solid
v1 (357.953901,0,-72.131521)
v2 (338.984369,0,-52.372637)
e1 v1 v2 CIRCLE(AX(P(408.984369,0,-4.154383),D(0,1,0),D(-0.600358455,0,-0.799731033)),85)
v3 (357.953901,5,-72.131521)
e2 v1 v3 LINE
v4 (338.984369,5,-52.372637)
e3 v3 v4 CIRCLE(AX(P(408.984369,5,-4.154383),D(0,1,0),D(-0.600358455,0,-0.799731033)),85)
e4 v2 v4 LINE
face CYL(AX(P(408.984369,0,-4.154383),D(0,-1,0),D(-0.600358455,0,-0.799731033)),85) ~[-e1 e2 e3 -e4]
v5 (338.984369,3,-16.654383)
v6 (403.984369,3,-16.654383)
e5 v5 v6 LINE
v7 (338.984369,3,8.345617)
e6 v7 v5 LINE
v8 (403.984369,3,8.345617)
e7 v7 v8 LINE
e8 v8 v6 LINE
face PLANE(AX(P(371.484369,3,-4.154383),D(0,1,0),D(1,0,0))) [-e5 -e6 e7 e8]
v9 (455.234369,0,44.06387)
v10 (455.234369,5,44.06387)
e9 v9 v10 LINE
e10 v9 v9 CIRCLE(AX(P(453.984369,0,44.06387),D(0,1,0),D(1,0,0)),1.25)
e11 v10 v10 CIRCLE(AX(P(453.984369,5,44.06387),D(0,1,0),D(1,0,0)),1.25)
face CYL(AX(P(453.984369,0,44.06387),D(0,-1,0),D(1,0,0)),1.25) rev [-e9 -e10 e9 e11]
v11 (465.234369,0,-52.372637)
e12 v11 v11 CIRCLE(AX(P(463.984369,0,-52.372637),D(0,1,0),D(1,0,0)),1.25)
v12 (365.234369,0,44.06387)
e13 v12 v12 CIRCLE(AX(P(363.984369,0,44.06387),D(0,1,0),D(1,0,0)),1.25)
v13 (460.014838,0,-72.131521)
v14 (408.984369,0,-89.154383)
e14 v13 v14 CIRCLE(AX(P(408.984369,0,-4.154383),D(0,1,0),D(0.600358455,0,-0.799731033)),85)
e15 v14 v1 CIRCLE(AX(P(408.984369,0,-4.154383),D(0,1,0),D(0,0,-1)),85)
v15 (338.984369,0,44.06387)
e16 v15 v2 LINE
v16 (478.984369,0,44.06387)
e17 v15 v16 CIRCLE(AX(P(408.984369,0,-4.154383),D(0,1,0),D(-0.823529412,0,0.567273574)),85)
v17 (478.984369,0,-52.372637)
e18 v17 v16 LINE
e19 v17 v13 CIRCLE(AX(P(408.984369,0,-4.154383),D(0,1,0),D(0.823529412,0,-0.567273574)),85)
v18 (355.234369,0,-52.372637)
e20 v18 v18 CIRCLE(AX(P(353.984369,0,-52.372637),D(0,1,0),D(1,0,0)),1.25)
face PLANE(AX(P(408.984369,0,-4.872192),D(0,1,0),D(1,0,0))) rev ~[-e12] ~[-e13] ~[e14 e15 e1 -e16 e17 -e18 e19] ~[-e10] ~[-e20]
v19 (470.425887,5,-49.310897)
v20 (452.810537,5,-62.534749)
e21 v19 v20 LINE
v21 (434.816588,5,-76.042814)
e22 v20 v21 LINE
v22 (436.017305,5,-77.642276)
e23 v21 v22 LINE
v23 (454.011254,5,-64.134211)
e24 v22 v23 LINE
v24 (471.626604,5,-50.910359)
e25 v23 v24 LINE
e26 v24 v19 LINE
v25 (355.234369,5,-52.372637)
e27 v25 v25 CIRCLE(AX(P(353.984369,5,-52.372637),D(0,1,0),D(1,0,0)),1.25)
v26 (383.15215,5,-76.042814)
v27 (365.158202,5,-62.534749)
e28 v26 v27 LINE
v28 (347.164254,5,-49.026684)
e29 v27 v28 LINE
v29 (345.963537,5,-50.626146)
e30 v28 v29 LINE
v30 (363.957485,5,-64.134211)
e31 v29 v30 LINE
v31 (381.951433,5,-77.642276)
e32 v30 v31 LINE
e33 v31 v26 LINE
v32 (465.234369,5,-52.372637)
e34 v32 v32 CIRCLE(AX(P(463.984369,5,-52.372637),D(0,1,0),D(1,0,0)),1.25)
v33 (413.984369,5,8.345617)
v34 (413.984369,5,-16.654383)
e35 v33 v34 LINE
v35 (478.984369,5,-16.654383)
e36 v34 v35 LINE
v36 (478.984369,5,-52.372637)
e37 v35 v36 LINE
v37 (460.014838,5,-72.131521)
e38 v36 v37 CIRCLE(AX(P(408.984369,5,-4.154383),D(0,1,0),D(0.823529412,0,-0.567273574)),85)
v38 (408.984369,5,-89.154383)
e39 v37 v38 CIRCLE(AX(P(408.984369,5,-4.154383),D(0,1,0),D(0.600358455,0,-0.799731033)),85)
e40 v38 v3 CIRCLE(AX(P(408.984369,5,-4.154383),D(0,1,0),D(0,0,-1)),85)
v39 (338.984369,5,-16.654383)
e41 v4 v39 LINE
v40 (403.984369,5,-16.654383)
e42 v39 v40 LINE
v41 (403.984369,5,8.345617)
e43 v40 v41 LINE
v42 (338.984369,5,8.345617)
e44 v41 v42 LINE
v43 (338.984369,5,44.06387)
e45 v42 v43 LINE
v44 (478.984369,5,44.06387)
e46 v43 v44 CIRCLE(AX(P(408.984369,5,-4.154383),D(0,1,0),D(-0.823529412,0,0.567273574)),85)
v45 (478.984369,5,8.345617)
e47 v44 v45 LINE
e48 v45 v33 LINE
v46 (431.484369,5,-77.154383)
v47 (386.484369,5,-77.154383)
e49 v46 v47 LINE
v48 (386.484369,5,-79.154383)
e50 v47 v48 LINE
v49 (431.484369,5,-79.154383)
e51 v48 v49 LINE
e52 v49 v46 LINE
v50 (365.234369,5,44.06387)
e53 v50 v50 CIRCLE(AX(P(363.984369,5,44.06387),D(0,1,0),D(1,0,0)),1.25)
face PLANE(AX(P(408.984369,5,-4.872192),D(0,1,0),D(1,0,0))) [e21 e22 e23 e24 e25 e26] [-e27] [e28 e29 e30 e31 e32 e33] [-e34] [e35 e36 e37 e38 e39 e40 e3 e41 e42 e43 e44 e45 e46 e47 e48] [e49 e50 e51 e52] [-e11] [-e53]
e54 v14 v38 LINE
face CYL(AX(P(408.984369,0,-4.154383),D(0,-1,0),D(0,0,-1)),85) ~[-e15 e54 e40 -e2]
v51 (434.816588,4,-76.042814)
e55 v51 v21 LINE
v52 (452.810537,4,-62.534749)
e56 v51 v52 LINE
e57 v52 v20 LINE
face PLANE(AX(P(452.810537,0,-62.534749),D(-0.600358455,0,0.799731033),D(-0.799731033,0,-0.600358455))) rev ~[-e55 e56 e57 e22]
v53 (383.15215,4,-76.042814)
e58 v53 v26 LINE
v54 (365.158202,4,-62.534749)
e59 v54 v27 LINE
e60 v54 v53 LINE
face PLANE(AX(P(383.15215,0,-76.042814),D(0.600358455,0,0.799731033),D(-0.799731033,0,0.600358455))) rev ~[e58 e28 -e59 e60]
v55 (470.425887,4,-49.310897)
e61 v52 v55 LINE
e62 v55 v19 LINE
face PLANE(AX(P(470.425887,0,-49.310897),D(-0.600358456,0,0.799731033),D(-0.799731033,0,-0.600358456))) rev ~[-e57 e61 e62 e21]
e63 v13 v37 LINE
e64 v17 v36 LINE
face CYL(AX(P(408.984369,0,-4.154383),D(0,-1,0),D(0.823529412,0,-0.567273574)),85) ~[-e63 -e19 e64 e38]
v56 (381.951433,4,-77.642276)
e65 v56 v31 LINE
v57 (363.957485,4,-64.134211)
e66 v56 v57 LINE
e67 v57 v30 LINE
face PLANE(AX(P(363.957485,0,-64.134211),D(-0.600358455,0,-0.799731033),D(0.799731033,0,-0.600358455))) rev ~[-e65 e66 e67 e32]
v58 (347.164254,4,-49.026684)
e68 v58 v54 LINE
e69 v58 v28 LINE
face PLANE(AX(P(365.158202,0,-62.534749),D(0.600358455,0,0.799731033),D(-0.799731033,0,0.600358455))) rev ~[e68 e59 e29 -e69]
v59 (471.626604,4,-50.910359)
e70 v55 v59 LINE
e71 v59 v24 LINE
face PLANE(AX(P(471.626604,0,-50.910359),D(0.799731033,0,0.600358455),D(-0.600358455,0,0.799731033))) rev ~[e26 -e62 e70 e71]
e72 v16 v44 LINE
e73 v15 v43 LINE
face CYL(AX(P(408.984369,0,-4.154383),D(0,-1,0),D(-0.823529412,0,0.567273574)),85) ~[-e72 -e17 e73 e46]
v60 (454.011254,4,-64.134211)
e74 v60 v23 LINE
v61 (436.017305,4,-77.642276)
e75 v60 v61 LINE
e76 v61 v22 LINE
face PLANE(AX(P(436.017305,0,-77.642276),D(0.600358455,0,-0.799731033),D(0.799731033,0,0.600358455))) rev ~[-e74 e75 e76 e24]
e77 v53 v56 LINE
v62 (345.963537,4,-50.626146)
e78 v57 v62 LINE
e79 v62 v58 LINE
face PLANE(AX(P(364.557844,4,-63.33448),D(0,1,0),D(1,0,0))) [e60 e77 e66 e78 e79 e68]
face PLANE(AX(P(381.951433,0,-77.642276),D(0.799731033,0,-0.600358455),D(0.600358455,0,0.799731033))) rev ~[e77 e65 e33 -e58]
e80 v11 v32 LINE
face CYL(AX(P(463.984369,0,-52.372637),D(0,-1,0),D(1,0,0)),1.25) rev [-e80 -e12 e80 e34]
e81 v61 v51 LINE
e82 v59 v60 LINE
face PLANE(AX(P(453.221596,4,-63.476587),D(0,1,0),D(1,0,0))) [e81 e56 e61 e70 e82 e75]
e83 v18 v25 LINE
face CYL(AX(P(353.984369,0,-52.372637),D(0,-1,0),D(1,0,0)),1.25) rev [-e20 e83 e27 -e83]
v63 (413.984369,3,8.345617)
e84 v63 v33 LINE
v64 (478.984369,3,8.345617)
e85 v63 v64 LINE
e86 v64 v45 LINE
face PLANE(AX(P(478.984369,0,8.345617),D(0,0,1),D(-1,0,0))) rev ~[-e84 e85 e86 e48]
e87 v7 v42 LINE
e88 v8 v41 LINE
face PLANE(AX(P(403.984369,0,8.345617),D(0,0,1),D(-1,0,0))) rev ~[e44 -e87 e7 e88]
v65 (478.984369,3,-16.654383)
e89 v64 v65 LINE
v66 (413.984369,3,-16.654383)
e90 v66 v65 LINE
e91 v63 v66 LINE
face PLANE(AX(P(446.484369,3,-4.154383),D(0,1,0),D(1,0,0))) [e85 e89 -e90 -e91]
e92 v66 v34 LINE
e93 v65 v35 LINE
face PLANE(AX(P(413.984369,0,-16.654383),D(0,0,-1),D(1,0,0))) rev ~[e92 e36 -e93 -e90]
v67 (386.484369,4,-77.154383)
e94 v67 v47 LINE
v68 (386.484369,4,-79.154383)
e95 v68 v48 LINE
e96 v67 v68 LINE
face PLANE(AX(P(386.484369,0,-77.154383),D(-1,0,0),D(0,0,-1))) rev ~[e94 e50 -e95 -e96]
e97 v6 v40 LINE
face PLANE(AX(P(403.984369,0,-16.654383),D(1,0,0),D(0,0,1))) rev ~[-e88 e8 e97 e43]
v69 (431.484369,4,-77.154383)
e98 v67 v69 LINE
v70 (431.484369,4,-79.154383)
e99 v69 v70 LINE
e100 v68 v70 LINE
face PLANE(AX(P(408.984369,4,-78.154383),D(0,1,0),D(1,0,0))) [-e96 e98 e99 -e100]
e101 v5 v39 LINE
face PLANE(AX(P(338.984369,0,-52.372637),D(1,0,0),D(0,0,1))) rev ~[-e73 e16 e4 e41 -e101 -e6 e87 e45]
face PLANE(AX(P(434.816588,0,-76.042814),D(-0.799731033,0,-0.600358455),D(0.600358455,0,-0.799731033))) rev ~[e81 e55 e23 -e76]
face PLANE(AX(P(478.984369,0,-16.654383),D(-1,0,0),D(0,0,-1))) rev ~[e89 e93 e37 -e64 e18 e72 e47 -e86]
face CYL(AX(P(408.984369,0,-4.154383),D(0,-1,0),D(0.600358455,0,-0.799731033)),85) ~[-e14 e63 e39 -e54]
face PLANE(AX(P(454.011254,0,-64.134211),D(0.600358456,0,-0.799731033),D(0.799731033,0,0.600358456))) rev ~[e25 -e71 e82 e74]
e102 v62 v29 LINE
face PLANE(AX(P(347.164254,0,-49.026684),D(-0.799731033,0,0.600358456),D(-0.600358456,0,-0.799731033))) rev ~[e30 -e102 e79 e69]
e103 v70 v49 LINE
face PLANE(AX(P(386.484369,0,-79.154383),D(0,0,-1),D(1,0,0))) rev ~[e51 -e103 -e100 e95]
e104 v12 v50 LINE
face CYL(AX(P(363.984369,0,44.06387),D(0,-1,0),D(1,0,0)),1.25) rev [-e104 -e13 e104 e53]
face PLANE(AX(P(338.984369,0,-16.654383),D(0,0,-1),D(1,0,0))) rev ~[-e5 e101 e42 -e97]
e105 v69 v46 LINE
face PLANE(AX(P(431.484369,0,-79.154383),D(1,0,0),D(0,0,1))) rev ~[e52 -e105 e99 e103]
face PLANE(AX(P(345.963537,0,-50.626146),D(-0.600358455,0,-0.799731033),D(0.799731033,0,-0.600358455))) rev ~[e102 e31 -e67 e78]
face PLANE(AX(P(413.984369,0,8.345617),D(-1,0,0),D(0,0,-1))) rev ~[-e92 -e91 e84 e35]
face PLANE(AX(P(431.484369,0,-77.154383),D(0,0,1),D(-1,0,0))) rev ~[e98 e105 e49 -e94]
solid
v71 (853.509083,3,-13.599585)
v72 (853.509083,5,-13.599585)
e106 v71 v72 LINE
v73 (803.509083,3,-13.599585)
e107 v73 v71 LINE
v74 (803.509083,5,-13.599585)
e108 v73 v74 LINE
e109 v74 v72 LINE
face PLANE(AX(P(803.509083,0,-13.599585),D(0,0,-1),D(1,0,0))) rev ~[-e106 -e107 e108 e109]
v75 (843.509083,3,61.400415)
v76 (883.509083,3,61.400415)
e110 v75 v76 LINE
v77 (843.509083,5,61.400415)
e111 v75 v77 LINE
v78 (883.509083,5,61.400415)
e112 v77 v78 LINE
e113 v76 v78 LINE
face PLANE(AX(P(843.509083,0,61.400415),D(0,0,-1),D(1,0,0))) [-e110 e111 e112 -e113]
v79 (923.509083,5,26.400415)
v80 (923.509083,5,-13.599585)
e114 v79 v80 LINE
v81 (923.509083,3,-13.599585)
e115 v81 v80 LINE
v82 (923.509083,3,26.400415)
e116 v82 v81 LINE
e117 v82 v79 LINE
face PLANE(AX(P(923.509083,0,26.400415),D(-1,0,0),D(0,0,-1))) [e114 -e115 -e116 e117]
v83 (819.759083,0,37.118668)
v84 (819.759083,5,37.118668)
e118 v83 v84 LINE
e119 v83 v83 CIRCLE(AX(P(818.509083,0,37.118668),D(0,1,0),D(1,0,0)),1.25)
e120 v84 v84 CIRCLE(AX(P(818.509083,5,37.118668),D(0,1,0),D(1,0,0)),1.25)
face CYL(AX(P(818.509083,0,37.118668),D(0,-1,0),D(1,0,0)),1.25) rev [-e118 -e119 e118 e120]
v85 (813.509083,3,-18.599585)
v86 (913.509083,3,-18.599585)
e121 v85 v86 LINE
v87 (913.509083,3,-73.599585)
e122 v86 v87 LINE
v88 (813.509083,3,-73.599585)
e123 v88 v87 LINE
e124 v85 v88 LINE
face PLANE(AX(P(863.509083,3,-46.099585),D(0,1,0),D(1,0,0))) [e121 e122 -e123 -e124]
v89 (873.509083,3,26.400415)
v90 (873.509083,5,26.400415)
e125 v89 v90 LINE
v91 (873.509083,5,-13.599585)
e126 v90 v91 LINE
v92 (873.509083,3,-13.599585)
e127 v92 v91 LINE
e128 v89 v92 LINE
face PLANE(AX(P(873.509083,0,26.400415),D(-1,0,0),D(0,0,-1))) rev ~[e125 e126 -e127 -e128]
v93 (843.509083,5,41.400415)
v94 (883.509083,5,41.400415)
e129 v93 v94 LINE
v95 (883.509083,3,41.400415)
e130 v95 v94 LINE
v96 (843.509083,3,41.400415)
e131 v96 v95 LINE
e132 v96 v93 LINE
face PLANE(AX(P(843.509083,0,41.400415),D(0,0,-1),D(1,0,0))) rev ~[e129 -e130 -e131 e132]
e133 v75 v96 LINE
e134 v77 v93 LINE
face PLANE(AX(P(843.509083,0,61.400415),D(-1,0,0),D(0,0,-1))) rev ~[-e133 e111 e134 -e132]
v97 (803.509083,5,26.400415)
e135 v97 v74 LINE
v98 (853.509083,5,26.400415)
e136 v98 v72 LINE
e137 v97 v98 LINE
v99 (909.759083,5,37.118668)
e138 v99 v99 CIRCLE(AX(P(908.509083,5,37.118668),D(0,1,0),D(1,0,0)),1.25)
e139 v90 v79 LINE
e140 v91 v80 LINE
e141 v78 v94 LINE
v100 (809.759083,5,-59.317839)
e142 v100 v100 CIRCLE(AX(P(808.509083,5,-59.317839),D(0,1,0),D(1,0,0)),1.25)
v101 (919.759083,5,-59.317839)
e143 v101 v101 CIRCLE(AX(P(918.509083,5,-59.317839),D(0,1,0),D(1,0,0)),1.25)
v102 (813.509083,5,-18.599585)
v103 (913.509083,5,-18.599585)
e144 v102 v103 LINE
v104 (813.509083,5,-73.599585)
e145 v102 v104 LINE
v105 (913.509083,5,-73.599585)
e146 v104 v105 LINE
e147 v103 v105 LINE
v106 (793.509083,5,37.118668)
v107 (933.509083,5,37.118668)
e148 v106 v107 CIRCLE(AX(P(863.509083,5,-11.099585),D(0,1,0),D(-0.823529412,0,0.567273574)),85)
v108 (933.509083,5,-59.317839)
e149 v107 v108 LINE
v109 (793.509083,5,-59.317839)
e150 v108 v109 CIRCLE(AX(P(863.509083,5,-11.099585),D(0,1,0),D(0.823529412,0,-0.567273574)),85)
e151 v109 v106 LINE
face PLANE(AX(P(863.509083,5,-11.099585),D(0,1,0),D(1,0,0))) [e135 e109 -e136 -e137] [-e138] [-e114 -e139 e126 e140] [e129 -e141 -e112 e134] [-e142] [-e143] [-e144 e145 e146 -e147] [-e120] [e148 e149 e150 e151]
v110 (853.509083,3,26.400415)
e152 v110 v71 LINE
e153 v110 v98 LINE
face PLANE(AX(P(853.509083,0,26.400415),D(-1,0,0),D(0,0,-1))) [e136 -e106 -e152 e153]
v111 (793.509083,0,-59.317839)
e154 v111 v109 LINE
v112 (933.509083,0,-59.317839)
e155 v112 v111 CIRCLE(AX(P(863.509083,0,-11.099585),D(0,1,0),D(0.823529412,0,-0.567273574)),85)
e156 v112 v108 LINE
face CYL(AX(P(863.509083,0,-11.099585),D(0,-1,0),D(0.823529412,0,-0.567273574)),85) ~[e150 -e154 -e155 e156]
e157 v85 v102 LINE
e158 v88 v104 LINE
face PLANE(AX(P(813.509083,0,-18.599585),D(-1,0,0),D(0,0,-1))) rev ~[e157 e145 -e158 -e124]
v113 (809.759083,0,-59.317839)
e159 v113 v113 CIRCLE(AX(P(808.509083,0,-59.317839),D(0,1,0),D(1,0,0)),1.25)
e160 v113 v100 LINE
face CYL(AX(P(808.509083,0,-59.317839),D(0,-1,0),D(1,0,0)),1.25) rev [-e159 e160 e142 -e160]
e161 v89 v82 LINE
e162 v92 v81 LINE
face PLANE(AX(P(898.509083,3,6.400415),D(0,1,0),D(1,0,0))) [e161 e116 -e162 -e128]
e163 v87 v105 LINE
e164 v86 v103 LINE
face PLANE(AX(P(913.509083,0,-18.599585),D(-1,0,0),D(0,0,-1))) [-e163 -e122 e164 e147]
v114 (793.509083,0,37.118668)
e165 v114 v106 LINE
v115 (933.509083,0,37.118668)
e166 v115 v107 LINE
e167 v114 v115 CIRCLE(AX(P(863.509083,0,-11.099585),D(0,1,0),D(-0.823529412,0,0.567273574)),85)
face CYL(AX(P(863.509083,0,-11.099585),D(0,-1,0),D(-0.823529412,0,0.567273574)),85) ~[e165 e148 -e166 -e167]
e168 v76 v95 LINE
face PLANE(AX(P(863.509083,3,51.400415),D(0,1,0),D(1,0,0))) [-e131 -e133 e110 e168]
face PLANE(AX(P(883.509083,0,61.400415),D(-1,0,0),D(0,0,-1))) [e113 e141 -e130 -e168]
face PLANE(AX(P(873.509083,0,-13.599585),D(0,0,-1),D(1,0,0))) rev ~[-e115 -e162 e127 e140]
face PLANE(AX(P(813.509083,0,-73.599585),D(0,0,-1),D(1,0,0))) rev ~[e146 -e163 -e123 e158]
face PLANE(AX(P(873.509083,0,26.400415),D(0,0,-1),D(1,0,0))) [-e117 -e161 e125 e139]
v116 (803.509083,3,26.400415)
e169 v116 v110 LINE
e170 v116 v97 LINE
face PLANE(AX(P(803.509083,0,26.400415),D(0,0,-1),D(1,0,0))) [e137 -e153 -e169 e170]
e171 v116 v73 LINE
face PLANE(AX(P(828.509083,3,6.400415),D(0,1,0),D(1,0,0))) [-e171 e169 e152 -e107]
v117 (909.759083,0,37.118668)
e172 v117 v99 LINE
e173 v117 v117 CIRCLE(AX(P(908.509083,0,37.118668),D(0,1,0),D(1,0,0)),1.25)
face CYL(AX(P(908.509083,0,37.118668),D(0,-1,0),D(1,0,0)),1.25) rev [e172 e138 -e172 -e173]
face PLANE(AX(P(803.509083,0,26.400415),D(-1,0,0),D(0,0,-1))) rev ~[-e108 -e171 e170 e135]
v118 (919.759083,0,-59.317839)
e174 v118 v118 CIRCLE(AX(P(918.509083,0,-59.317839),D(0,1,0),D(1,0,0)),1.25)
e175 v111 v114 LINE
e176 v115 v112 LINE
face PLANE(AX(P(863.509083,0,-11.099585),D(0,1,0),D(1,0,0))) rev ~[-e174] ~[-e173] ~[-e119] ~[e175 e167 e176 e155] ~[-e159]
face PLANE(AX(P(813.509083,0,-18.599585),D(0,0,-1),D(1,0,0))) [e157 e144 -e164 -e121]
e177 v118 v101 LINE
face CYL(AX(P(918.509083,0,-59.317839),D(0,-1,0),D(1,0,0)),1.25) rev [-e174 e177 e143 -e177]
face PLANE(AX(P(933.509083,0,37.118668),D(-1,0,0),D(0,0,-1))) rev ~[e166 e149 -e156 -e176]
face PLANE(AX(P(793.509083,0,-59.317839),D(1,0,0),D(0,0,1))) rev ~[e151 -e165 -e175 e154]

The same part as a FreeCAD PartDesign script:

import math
import FreeCAD as App
import Part
import Sketcher
from FreeCAD import Vector

doc = App.newDocument("Part")
body = doc.addObject("PartDesign::Body", "Body")

# Sketch on XZ plane
sketch1 = doc.addObject("Sketcher::SketchObject", "Sketch")
body.addObject(sketch1)
sketch1.AttachmentSupport = (doc.XZ_Plane, [""])
sketch1.MapMode = "FlatFace"
sketch1.addGeometry([
    Part.LineSegment(Vector(347.2, -49, 0), Vector(383.2, -76, 0)),
    Part.LineSegment(Vector(383.2, -76, 0), Vector(382, -77.6, 0)),
    Part.LineSegment(Vector(382, -77.6, 0), Vector(346, -50.6, 0)),
    Part.LineSegment(Vector(346, -50.6, 0), Vector(347.2, -49, 0)),
], False)
sketch1.addConstraint([
    Sketcher.Constraint("Coincident", 0, 2, 1, 1),
    Sketcher.Constraint("Coincident", 1, 2, 2, 1),
    Sketcher.Constraint("Coincident", 2, 2, 3, 1),
    Sketcher.Constraint("Coincident", 3, 2, 0, 1),
    Sketcher.Constraint("Perpendicular", 0, 1),
    Sketcher.Constraint("Perpendicular", 1, 2),
    Sketcher.Constraint("Perpendicular", 2, 3),
    Sketcher.Constraint("Distance", 0, 45.0),
    Sketcher.Constraint("Distance", 1, 2.0),
    Sketcher.Constraint("DistanceX", -1, 1, 0, 2, 383.15215),
    Sketcher.Constraint("DistanceY", 1, 2, 2, 2, 27.01613),
    Sketcher.Constraint("DistanceY", 0, 2, -1, 1, 76.042814),
])
pad1 = doc.addObject("PartDesign::Pad", "Pad")
body.addObject(pad1)
pad1.Profile = sketch1
pad1.Length = 4
pad1.Reversed = True
body2 = doc.addObject("PartDesign::Body", "Body001")

# Sketch on XZ plane
sketch2 = doc.addObject("Sketcher::SketchObject", "Sketch001")
body2.addObject(sketch2)
sketch2.AttachmentSupport = (doc.getObject("XZ_Plane001"), [""])
sketch2.MapMode = "FlatFace"
sketch2.addGeometry([
    Part.LineSegment(Vector(386.5, -79.2, 0), Vector(386.5, -77.2, 0)),
    Part.LineSegment(Vector(386.5, -77.2, 0), Vector(431.5, -77.2, 0)),
    Part.LineSegment(Vector(431.5, -77.2, 0), Vector(431.5, -79.2, 0)),
    Part.LineSegment(Vector(431.5, -79.2, 0), Vector(386.5, -79.2, 0)),
], False)
sketch2.addConstraint([
    Sketcher.Constraint("Coincident", 0, 2, 1, 1),
    Sketcher.Constraint("Coincident", 1, 2, 2, 1),
    Sketcher.Constraint("Coincident", 2, 2, 3, 1),
    Sketcher.Constraint("Coincident", 3, 2, 0, 1),
    Sketcher.Constraint("Vertical", 0),
    Sketcher.Constraint("Horizontal", 1),
    Sketcher.Constraint("Vertical", 2),
    Sketcher.Constraint("Horizontal", 3),
    Sketcher.Constraint("DistanceX", 1, 1, 1, 2, 45.0),
    Sketcher.Constraint("DistanceY", 0, 1, 0, 2, 2.0),
    Sketcher.Constraint("DistanceX", -1, 1, 0, 2, 386.484369),
    Sketcher.Constraint("DistanceY", 0, 2, -1, 1, 77.154383),
])
pad2 = doc.addObject("PartDesign::Pad", "Pad001")
body2.addObject(pad2)
pad2.Profile = sketch2
pad2.Length = 4
pad2.Reversed = True
body3 = doc.addObject("PartDesign::Body", "Body002")

# Sketch on XZ plane
sketch3 = doc.addObject("Sketcher::SketchObject", "Sketch002")
body3.addObject(sketch3)
sketch3.AttachmentSupport = (doc.getObject("XZ_Plane002"), [""])
sketch3.MapMode = "FlatFace"
sketch3.addGeometry([
    Part.LineSegment(Vector(471.6, -50.9, 0), Vector(436, -77.6, 0)),
    Part.LineSegment(Vector(436, -77.6, 0), Vector(434.8, -76, 0)),
    Part.LineSegment(Vector(434.8, -76, 0), Vector(470.4, -49.3, 0)),
    Part.LineSegment(Vector(470.4, -49.3, 0), Vector(471.6, -50.9, 0)),
], False)
sketch3.addConstraint([
    Sketcher.Constraint("Coincident", 0, 2, 1, 1),
    Sketcher.Constraint("Coincident", 1, 2, 2, 1),
    Sketcher.Constraint("Coincident", 2, 2, 3, 1),
    Sketcher.Constraint("Coincident", 3, 2, 0, 1),
    Sketcher.Constraint("Perpendicular", 0, 1),
    Sketcher.Constraint("Perpendicular", 1, 2),
    Sketcher.Constraint("Perpendicular", 2, 3),
    Sketcher.Constraint("Distance", 1, 2.0),
    Sketcher.Constraint("DistanceX", 1, 2, 2, 2, 35.609299),
    Sketcher.Constraint("DistanceX", -1, 1, 1, 2, 434.816588),
    Sketcher.Constraint("DistanceY", 3, 2, -1, 1, 50.910359),
    Sketcher.Constraint("DistanceX", 0, 2, 2, 2, 34.408582),
])
pad3 = doc.addObject("PartDesign::Pad", "Pad002")
body3.addObject(pad3)
pad3.Profile = sketch3
pad3.Length = 4
pad3.Reversed = True
body4 = doc.addObject("PartDesign::Body", "Body003")

# Sketch on XZ plane
sketch4 = doc.addObject("Sketcher::SketchObject", "Sketch003")
body4.addObject(sketch4)
sketch4.AttachmentSupport = (doc.getObject("XZ_Plane003"), [""])
sketch4.MapMode = "FlatFace"
sketch4.addGeometry([
    Part.LineSegment(Vector(339, -17, 0), Vector(339, 8, 0)),
    Part.LineSegment(Vector(339, 8, 0), Vector(404, 8, 0)),
    Part.LineSegment(Vector(404, 8, 0), Vector(404, -17, 0)),
    Part.LineSegment(Vector(404, -17, 0), Vector(339, -17, 0)),
], False)
sketch4.addConstraint([
    Sketcher.Constraint("Coincident", 0, 2, 1, 1),
    Sketcher.Constraint("Coincident", 1, 2, 2, 1),
    Sketcher.Constraint("Coincident", 2, 2, 3, 1),
    Sketcher.Constraint("Coincident", 3, 2, 0, 1),
    Sketcher.Constraint("Vertical", 0),
    Sketcher.Constraint("Horizontal", 1),
    Sketcher.Constraint("Vertical", 2),
    Sketcher.Constraint("Horizontal", 3),
    Sketcher.Constraint("DistanceX", 1, 1, 1, 2, 65.0),
    Sketcher.Constraint("DistanceY", 0, 1, 0, 2, 25.0),
    Sketcher.Constraint("DistanceX", -1, 1, 0, 2, 338.984369),
    Sketcher.Constraint("DistanceY", -1, 1, 0, 2, 8.345617),
])
pad4 = doc.addObject("PartDesign::Pad", "Pad003")
body4.addObject(pad4)
pad4.Profile = sketch4
pad4.Length = 3
pad4.Reversed = True
body5 = doc.addObject("PartDesign::Body", "Body004")

# Sketch on XZ plane
sketch5 = doc.addObject("Sketcher::SketchObject", "Sketch004")
body5.addObject(sketch5)
sketch5.AttachmentSupport = (doc.getObject("XZ_Plane004"), [""])
sketch5.MapMode = "FlatFace"
sketch5.addGeometry([
    Part.LineSegment(Vector(414, -17, 0), Vector(414, 8, 0)),
    Part.LineSegment(Vector(414, 8, 0), Vector(479, 8, 0)),
    Part.LineSegment(Vector(479, 8, 0), Vector(479, -17, 0)),
    Part.LineSegment(Vector(479, -17, 0), Vector(414, -17, 0)),
], False)
sketch5.addConstraint([
    Sketcher.Constraint("Coincident", 0, 2, 1, 1),
    Sketcher.Constraint("Coincident", 1, 2, 2, 1),
    Sketcher.Constraint("Coincident", 2, 2, 3, 1),
    Sketcher.Constraint("Coincident", 3, 2, 0, 1),
    Sketcher.Constraint("Vertical", 0),
    Sketcher.Constraint("Horizontal", 1),
    Sketcher.Constraint("Vertical", 2),
    Sketcher.Constraint("Horizontal", 3),
    Sketcher.Constraint("DistanceX", 1, 1, 1, 2, 65.0),
    Sketcher.Constraint("DistanceY", 0, 1, 0, 2, 25.0),
    Sketcher.Constraint("DistanceX", -1, 1, 0, 2, 413.984369),
    Sketcher.Constraint("DistanceY", -1, 1, 0, 2, 8.345617),
])
pad5 = doc.addObject("PartDesign::Pad", "Pad004")
body5.addObject(pad5)
pad5.Profile = sketch5
pad5.Length = 3
pad5.Reversed = True
body.AllowCompound = True
doc.recompute()

boolean = doc.addObject("PartDesign::Boolean", "Boolean")
body.addObject(boolean)
boolean.Type = "Fuse"
boolean.addObjects([body2])
doc.recompute()

boolean2 = doc.addObject("PartDesign::Boolean", "Boolean001")
body.addObject(boolean2)
boolean2.Type = "Fuse"
boolean2.addObjects([body3])
doc.recompute()

boolean3 = doc.addObject("PartDesign::Boolean", "Boolean002")
body.addObject(boolean3)
boolean3.Type = "Fuse"
boolean3.addObjects([body4])
doc.recompute()

boolean4 = doc.addObject("PartDesign::Boolean", "Boolean003")
body.addObject(boolean4)
boolean4.Type = "Fuse"
boolean4.addObjects([body5])

# Sketch on XZ plane
sketch6 = doc.addObject("Sketcher::SketchObject", "Sketch005")
body.addObject(sketch6)
sketch6.AttachmentSupport = (doc.XZ_Plane, [""])
sketch6.MapMode = "FlatFace"
sketch6.addGeometry([
    Part.ArcOfCircle(Part.Circle(Vector(409, -4.2, 0), Vector(0, 0, 1), 85), math.radians(-127), math.radians(-90)),  # 0
    Part.ArcOfCircle(Part.Circle(Vector(409, -4.2, 0), Vector(0, 0, 1), 85), math.radians(-145.44), math.radians(-126.9)),  # 1
    Part.LineSegment(Vector(339, -52.4, 0), Vector(339, -16.7, 0)),  # 2
    Part.LineSegment(Vector(339, -16.7, 0), Vector(404, -16.7, 0)),  # 3
    Part.LineSegment(Vector(404, -16.7, 0), Vector(404, 8.3, 0)),  # 4
    Part.LineSegment(Vector(404, 8.3, 0), Vector(339, 8.3, 0)),  # 5
    Part.LineSegment(Vector(339, 8.3, 0), Vector(339, 44.1, 0)),  # 6
    Part.ArcOfCircle(Part.Circle(Vector(409, -4.2, 0), Vector(0, 0, 1), 85), math.radians(35), math.radians(145)),  # 7
    Part.LineSegment(Vector(479, 44.1, 0), Vector(479, 8.3, 0)),  # 8
    Part.LineSegment(Vector(479, 8.3, 0), Vector(414, 8.3, 0)),  # 9
    Part.LineSegment(Vector(414, 8.3, 0), Vector(414, -16.7, 0)),  # 10
    Part.LineSegment(Vector(414, -16.7, 0), Vector(479, -16.7, 0)),  # 11
    Part.LineSegment(Vector(479, -16.7, 0), Vector(479, -52.4, 0)),  # 12
    Part.ArcOfCircle(Part.Circle(Vector(409, -4.2, 0), Vector(0, 0, 1), 85), math.radians(-53.1), math.radians(-34.56)),  # 13
    Part.ArcOfCircle(Part.Circle(Vector(409, -4.2, 0), Vector(0, 0, 1), 85), math.radians(-90), math.radians(-53)),  # 14
    Part.Circle(Vector(364, 44.1, 0), Vector(0, 0, 1), 1.2),  # 15
    Part.Circle(Vector(454, 44.1, 0), Vector(0, 0, 1), 1.2),  # 16
    Part.Circle(Vector(354, -52.4, 0), Vector(0, 0, 1), 1.2),  # 17
    Part.LineSegment(Vector(347.2, -49, 0), Vector(346, -50.6, 0)),  # 18
    Part.LineSegment(Vector(346, -50.6, 0), Vector(364, -64.1, 0)),  # 19
    Part.LineSegment(Vector(364, -64.1, 0), Vector(382, -77.6, 0)),  # 20
    Part.LineSegment(Vector(382, -77.6, 0), Vector(383.2, -76, 0)),  # 21
    Part.LineSegment(Vector(383.2, -76, 0), Vector(365.2, -62.5, 0)),  # 22
    Part.LineSegment(Vector(365.2, -62.5, 0), Vector(347.2, -49, 0)),  # 23
    Part.LineSegment(Vector(386.5, -77.2, 0), Vector(386.5, -79.2, 0)),  # 24
    Part.LineSegment(Vector(386.5, -79.2, 0), Vector(431.5, -79.2, 0)),  # 25
    Part.LineSegment(Vector(431.5, -79.2, 0), Vector(431.5, -77.2, 0)),  # 26
    Part.LineSegment(Vector(431.5, -77.2, 0), Vector(386.5, -77.2, 0)),  # 27
    Part.LineSegment(Vector(434.8, -76, 0), Vector(436, -77.6, 0)),  # 28
    Part.LineSegment(Vector(436, -77.6, 0), Vector(454, -64.1, 0)),  # 29
    Part.LineSegment(Vector(454, -64.1, 0), Vector(471.6, -50.9, 0)),  # 30
    Part.LineSegment(Vector(471.6, -50.9, 0), Vector(470.4, -49.3, 0)),  # 31
    Part.LineSegment(Vector(470.4, -49.3, 0), Vector(452.8, -62.5, 0)),  # 32
    Part.LineSegment(Vector(452.8, -62.5, 0), Vector(434.8, -76, 0)),  # 33
    Part.Circle(Vector(464, -52.4, 0), Vector(0, 0, 1), 1.2),  # 34
], False)
sketch6.addConstraint([
    Sketcher.Constraint("Tangent", 0, 1, 1, 2),
    Sketcher.Constraint("Coincident", 1, 1, 2, 1),
    Sketcher.Constraint("Coincident", 2, 2, 3, 1),
    Sketcher.Constraint("Coincident", 3, 2, 4, 1),
    Sketcher.Constraint("Coincident", 4, 2, 5, 1),
    Sketcher.Constraint("Coincident", 5, 2, 6, 1),
    Sketcher.Constraint("Coincident", 6, 2, 7, 2),
    Sketcher.Constraint("Coincident", 7, 1, 8, 1),
    Sketcher.Constraint("Coincident", 8, 2, 9, 1),
    Sketcher.Constraint("Coincident", 9, 2, 10, 1),
    Sketcher.Constraint("Coincident", 10, 2, 11, 1),
    Sketcher.Constraint("Coincident", 11, 2, 12, 1),
    Sketcher.Constraint("Coincident", 12, 2, 13, 2),
    Sketcher.Constraint("Tangent", 13, 1, 14, 2),
    Sketcher.Constraint("Tangent", 14, 1, 0, 2),
    Sketcher.Constraint("Coincident", 18, 2, 19, 1),
    Sketcher.Constraint("Coincident", 19, 2, 20, 1),
    Sketcher.Constraint("Coincident", 20, 2, 21, 1),
    Sketcher.Constraint("Coincident", 21, 2, 22, 1),
    Sketcher.Constraint("Coincident", 22, 2, 23, 1),
    Sketcher.Constraint("Coincident", 23, 2, 18, 1),
    Sketcher.Constraint("Coincident", 24, 2, 25, 1),
    Sketcher.Constraint("Coincident", 25, 2, 26, 1),
    Sketcher.Constraint("Coincident", 26, 2, 27, 1),
    Sketcher.Constraint("Coincident", 27, 2, 24, 1),
    Sketcher.Constraint("Coincident", 28, 2, 29, 1),
    Sketcher.Constraint("Coincident", 29, 2, 30, 1),
    Sketcher.Constraint("Coincident", 30, 2, 31, 1),
    Sketcher.Constraint("Coincident", 31, 2, 32, 1),
    Sketcher.Constraint("Coincident", 32, 2, 33, 1),
    Sketcher.Constraint("Coincident", 33, 2, 28, 1),
    Sketcher.Constraint("Vertical", 2),
    Sketcher.Constraint("Horizontal", 3),
    Sketcher.Constraint("Vertical", 4),
    Sketcher.Constraint("Horizontal", 5),
    Sketcher.Constraint("Vertical", 6),
    Sketcher.Constraint("Vertical", 8),
    Sketcher.Constraint("Horizontal", 9),
    Sketcher.Constraint("Vertical", 10),
    Sketcher.Constraint("Horizontal", 11),
    Sketcher.Constraint("Vertical", 12),
    Sketcher.Constraint("Vertical", 24),
    Sketcher.Constraint("Horizontal", 25),
    Sketcher.Constraint("Vertical", 26),
    Sketcher.Constraint("Horizontal", 27),
    Sketcher.Constraint("Coincident", 7, 3, 0, 3),
    Sketcher.Constraint("Coincident", 13, 3, 0, 3),
    Sketcher.Constraint("Equal", 0, 1),
    Sketcher.Constraint("Equal", 1, 7),
    Sketcher.Constraint("Equal", 15, 16),
    Sketcher.Constraint("Equal", 16, 17),
    Sketcher.Constraint("Equal", 17, 34),
    Sketcher.Constraint("Perpendicular", 18, 19),
    Sketcher.Constraint("Parallel", 19, 20),
    Sketcher.Constraint("Perpendicular", 20, 21),
    Sketcher.Constraint("Perpendicular", 21, 22),
    Sketcher.Constraint("Parallel", 22, 23),
    Sketcher.Constraint("Perpendicular", 28, 29),
    Sketcher.Constraint("Parallel", 29, 30),
    Sketcher.Constraint("Perpendicular", 30, 31),
    Sketcher.Constraint("Perpendicular", 31, 32),
    Sketcher.Constraint("Parallel", 32, 33),
    Sketcher.Constraint("Horizontal", 15, 3, 16, 3),
    Sketcher.Constraint("Horizontal", 17, 3, 34, 3),
    Sketcher.Constraint("Horizontal", 34, 3, 1, 1),
    Sketcher.Constraint("Horizontal", 16, 3, 6, 2),
    Sketcher.Constraint("Horizontal", 6, 2, 7, 1),
    Sketcher.Constraint("Horizontal", 5, 2, 8, 2),
    Sketcher.Constraint("Horizontal", 3, 2, 10, 2),
    Sketcher.Constraint("Horizontal", 1, 1, 12, 2),
    Sketcher.Constraint("Horizontal", 0, 1, 13, 1),
    Sketcher.Constraint("Horizontal", 20, 2, 28, 2),
    Sketcher.Constraint("Horizontal", 19, 2, 29, 2),
    Sketcher.Constraint("Horizontal", 22, 2, 32, 2),
    Sketcher.Constraint("Horizontal", 21, 2, 33, 2),
    Sketcher.Constraint("Vertical", 2, 2, 5, 2),
    Sketcher.Constraint("Vertical", 13, 3, 14, 1),
    Sketcher.Constraint("Equal", 5, 9),
    Sketcher.Constraint("Equal", 2, 6),
    Sketcher.Constraint("Equal", 19, 20),
    Sketcher.Constraint("Equal", 20, 22),
    Sketcher.Constraint("Equal", 21, 28),
    Sketcher.Constraint("Radius", 0, 85.0),
    Sketcher.Constraint("Diameter", 15, 2.5),
    Sketcher.Constraint("DistanceX", 3, 1, 3, 2, 65.0),
    Sketcher.Constraint("DistanceX", 25, 1, 25, 2, 45.0),
    Sketcher.Constraint("DistanceY", 4, 1, 4, 2, 25.0),
    Sketcher.Constraint("DistanceY", 24, 2, 24, 1, 2.0),
    Sketcher.Constraint("Distance", 18, 2.0),
    Sketcher.Constraint("DistanceX", 15, 3, 13, 3, 45.0),
    Sketcher.Constraint("DistanceX", 7, 3, 16, 3, 45.0),
    Sketcher.Constraint("DistanceX", 17, 3, 1, 3, 55.0),
    Sketcher.Constraint("DistanceX", 14, 3, 34, 3, 55.0),
    Sketcher.Constraint("DistanceX", 1, 1, 17, 3, 15.0),
    Sketcher.Constraint("DistanceY", 14, 1, 24, 2, 10.0),
    Sketcher.Constraint("Distance", 19, 22.5),
    Sketcher.Constraint("DistanceX", 24, 2, 14, 1, 22.5),
    Sketcher.Constraint("DistanceX", -1, 1, 0, 1, 357.953901),
    Sketcher.Constraint("DistanceX", 0, 1, 22, 2, 7.204301),
    Sketcher.Constraint("DistanceX", 32, 2, 13, 1, 7.204301),
    Sketcher.Constraint("DistanceX", -1, 1, 0, 3, 408.984369),
    Sketcher.Constraint("DistanceY", -1, 1, 15, 3, 44.06387),
    Sketcher.Constraint("DistanceY", 19, 2, -1, 1, 64.134211),
    Sketcher.Constraint("DistanceX", -1, 1, 21, 2, 383.15215),
    Sketcher.Constraint("DistanceY", 30, 2, -1, 1, 50.910359),
])
pad6 = doc.addObject("PartDesign::Pad", "Pad005")
body.addObject(pad6)
pad6.Profile = sketch6
pad6.Length = 5
pad6.Reversed = True
body6 = doc.addObject("PartDesign::Body", "Body005")

# Sketch on XZ plane
sketch7 = doc.addObject("Sketcher::SketchObject", "Sketch006")
body6.addObject(sketch7)
sketch7.AttachmentSupport = (doc.getObject("XZ_Plane005"), [""])
sketch7.MapMode = "FlatFace"
sketch7.addGeometry([
    Part.LineSegment(Vector(814, -74, 0), Vector(814, -19, 0)),
    Part.LineSegment(Vector(814, -19, 0), Vector(914, -19, 0)),
    Part.LineSegment(Vector(914, -19, 0), Vector(914, -74, 0)),
    Part.LineSegment(Vector(914, -74, 0), Vector(814, -74, 0)),
], False)
sketch7.addConstraint([
    Sketcher.Constraint("Coincident", 0, 2, 1, 1),
    Sketcher.Constraint("Coincident", 1, 2, 2, 1),
    Sketcher.Constraint("Coincident", 2, 2, 3, 1),
    Sketcher.Constraint("Coincident", 3, 2, 0, 1),
    Sketcher.Constraint("Vertical", 0),
    Sketcher.Constraint("Horizontal", 1),
    Sketcher.Constraint("Vertical", 2),
    Sketcher.Constraint("Horizontal", 3),
    Sketcher.Constraint("DistanceX", 1, 1, 1, 2, 100.0),
    Sketcher.Constraint("DistanceY", 0, 1, 0, 2, 55.0),
    Sketcher.Constraint("DistanceX", -1, 1, 0, 2, 813.509083),
    Sketcher.Constraint("DistanceY", 0, 2, -1, 1, 18.599585),
])
pad7 = doc.addObject("PartDesign::Pad", "Pad006")
body6.addObject(pad7)
pad7.Profile = sketch7
pad7.Length = 3
pad7.Reversed = True
body7 = doc.addObject("PartDesign::Body", "Body006")

# Sketch on XZ plane
sketch8 = doc.addObject("Sketcher::SketchObject", "Sketch007")
body7.addObject(sketch8)
sketch8.AttachmentSupport = (doc.getObject("XZ_Plane006"), [""])
sketch8.MapMode = "FlatFace"
sketch8.addGeometry([
    Part.LineSegment(Vector(874, -14, 0), Vector(874, 26, 0)),
    Part.LineSegment(Vector(874, 26, 0), Vector(924, 26, 0)),
    Part.LineSegment(Vector(924, 26, 0), Vector(924, -14, 0)),
    Part.LineSegment(Vector(924, -14, 0), Vector(874, -14, 0)),
], False)
sketch8.addConstraint([
    Sketcher.Constraint("Coincident", 0, 2, 1, 1),
    Sketcher.Constraint("Coincident", 1, 2, 2, 1),
    Sketcher.Constraint("Coincident", 2, 2, 3, 1),
    Sketcher.Constraint("Coincident", 3, 2, 0, 1),
    Sketcher.Constraint("Vertical", 0),
    Sketcher.Constraint("Horizontal", 1),
    Sketcher.Constraint("Vertical", 2),
    Sketcher.Constraint("Horizontal", 3),
    Sketcher.Constraint("DistanceX", 1, 1, 1, 2, 50.0),
    Sketcher.Constraint("DistanceY", 0, 1, 0, 2, 40.0),
    Sketcher.Constraint("DistanceX", -1, 1, 0, 2, 873.509083),
    Sketcher.Constraint("DistanceY", -1, 1, 0, 2, 26.400415),
])
pad8 = doc.addObject("PartDesign::Pad", "Pad007")
body7.addObject(pad8)
pad8.Profile = sketch8
pad8.Length = 3
pad8.Reversed = True
body8 = doc.addObject("PartDesign::Body", "Body007")

# Sketch on XZ plane
sketch9 = doc.addObject("Sketcher::SketchObject", "Sketch008")
body8.addObject(sketch9)
sketch9.AttachmentSupport = (doc.getObject("XZ_Plane007"), [""])
sketch9.MapMode = "FlatFace"
sketch9.addGeometry([
    Part.LineSegment(Vector(844, 41, 0), Vector(844, 61, 0)),
    Part.LineSegment(Vector(844, 61, 0), Vector(884, 61, 0)),
    Part.LineSegment(Vector(884, 61, 0), Vector(884, 41, 0)),
    Part.LineSegment(Vector(884, 41, 0), Vector(844, 41, 0)),
], False)
sketch9.addConstraint([
    Sketcher.Constraint("Coincident", 0, 2, 1, 1),
    Sketcher.Constraint("Coincident", 1, 2, 2, 1),
    Sketcher.Constraint("Coincident", 2, 2, 3, 1),
    Sketcher.Constraint("Coincident", 3, 2, 0, 1),
    Sketcher.Constraint("Vertical", 0),
    Sketcher.Constraint("Horizontal", 1),
    Sketcher.Constraint("Vertical", 2),
    Sketcher.Constraint("Horizontal", 3),
    Sketcher.Constraint("DistanceX", 1, 1, 1, 2, 40.0),
    Sketcher.Constraint("DistanceY", 0, 1, 0, 2, 20.0),
    Sketcher.Constraint("DistanceX", -1, 1, 0, 2, 843.509083),
    Sketcher.Constraint("DistanceY", -1, 1, 0, 2, 61.400415),
])
pad9 = doc.addObject("PartDesign::Pad", "Pad008")
body8.addObject(pad9)
pad9.Profile = sketch9
pad9.Length = 3
pad9.Reversed = True
body9 = doc.addObject("PartDesign::Body", "Body008")

# Sketch on XZ plane
sketch10 = doc.addObject("Sketcher::SketchObject", "Sketch009")
body9.addObject(sketch10)
sketch10.AttachmentSupport = (doc.getObject("XZ_Plane008"), [""])
sketch10.MapMode = "FlatFace"
sketch10.addGeometry([
    Part.LineSegment(Vector(804, -14, 0), Vector(804, 26, 0)),
    Part.LineSegment(Vector(804, 26, 0), Vector(854, 26, 0)),
    Part.LineSegment(Vector(854, 26, 0), Vector(854, -14, 0)),
    Part.LineSegment(Vector(854, -14, 0), Vector(804, -14, 0)),
], False)
sketch10.addConstraint([
    Sketcher.Constraint("Coincident", 0, 2, 1, 1),
    Sketcher.Constraint("Coincident", 1, 2, 2, 1),
    Sketcher.Constraint("Coincident", 2, 2, 3, 1),
    Sketcher.Constraint("Coincident", 3, 2, 0, 1),
    Sketcher.Constraint("Vertical", 0),
    Sketcher.Constraint("Horizontal", 1),
    Sketcher.Constraint("Vertical", 2),
    Sketcher.Constraint("Horizontal", 3),
    Sketcher.Constraint("DistanceX", 1, 1, 1, 2, 50.0),
    Sketcher.Constraint("DistanceY", 0, 1, 0, 2, 40.0),
    Sketcher.Constraint("DistanceX", -1, 1, 0, 2, 803.509083),
    Sketcher.Constraint("DistanceY", -1, 1, 0, 2, 26.400415),
])
pad10 = doc.addObject("PartDesign::Pad", "Pad009")
body9.addObject(pad10)
pad10.Profile = sketch10
pad10.Length = 3
pad10.Reversed = True
body6.AllowCompound = True
doc.recompute()

boolean5 = doc.addObject("PartDesign::Boolean", "Boolean004")
body6.addObject(boolean5)
boolean5.Type = "Fuse"
boolean5.addObjects([body7])
doc.recompute()

boolean6 = doc.addObject("PartDesign::Boolean", "Boolean005")
body6.addObject(boolean6)
boolean6.Type = "Fuse"
boolean6.addObjects([body8])
doc.recompute()

boolean7 = doc.addObject("PartDesign::Boolean", "Boolean006")
body6.addObject(boolean7)
boolean7.Type = "Fuse"
boolean7.addObjects([body9])

# Sketch on XZ plane
sketch11 = doc.addObject("Sketcher::SketchObject", "Sketch010")
body6.addObject(sketch11)
sketch11.AttachmentSupport = (doc.getObject("XZ_Plane005"), [""])
sketch11.MapMode = "FlatFace"
sketch11.addGeometry([
    Part.LineSegment(Vector(933.5, 37.1, 0), Vector(933.5, -59.3, 0)),  # 0
    Part.ArcOfCircle(Part.Circle(Vector(863.5, -11.1, 0), Vector(0, 0, 1), 85), math.radians(-145), math.radians(-35)),  # 1
    Part.LineSegment(Vector(793.5, -59.3, 0), Vector(793.5, 37.1, 0)),  # 2
    Part.ArcOfCircle(Part.Circle(Vector(863.5, -11.1, 0), Vector(0, 0, 1), 85), math.radians(35), math.radians(145)),  # 3
    Part.Circle(Vector(818.5, 37.1, 0), Vector(0, 0, 1), 1.2),  # 4
    Part.LineSegment(Vector(853.5, 26.4, 0), Vector(803.5, 26.4, 0)),  # 5
    Part.LineSegment(Vector(803.5, 26.4, 0), Vector(803.5, -13.6, 0)),  # 6
    Part.LineSegment(Vector(803.5, -13.6, 0), Vector(853.5, -13.6, 0)),  # 7
    Part.LineSegment(Vector(853.5, -13.6, 0), Vector(853.5, 26.4, 0)),  # 8
    Part.LineSegment(Vector(883.5, 61.4, 0), Vector(843.5, 61.4, 0)),  # 9
    Part.LineSegment(Vector(843.5, 61.4, 0), Vector(843.5, 41.4, 0)),  # 10
    Part.LineSegment(Vector(843.5, 41.4, 0), Vector(883.5, 41.4, 0)),  # 11
    Part.LineSegment(Vector(883.5, 41.4, 0), Vector(883.5, 61.4, 0)),  # 12
    Part.Circle(Vector(908.5, 37.1, 0), Vector(0, 0, 1), 1.2),  # 13
    Part.LineSegment(Vector(923.5, 26.4, 0), Vector(873.5, 26.4, 0)),  # 14
    Part.LineSegment(Vector(873.5, 26.4, 0), Vector(873.5, -13.6, 0)),  # 15
    Part.LineSegment(Vector(873.5, -13.6, 0), Vector(923.5, -13.6, 0)),  # 16
    Part.LineSegment(Vector(923.5, -13.6, 0), Vector(923.5, 26.4, 0)),  # 17
    Part.Circle(Vector(808.5, -59.3, 0), Vector(0, 0, 1), 1.2),  # 18
    Part.LineSegment(Vector(913.5, -18.6, 0), Vector(813.5, -18.6, 0)),  # 19
    Part.LineSegment(Vector(813.5, -18.6, 0), Vector(813.5, -73.6, 0)),  # 20
    Part.LineSegment(Vector(813.5, -73.6, 0), Vector(913.5, -73.6, 0)),  # 21
    Part.LineSegment(Vector(913.5, -73.6, 0), Vector(913.5, -18.6, 0)),  # 22
    Part.Circle(Vector(918.5, -59.3, 0), Vector(0, 0, 1), 1.2),  # 23
], False)
sketch11.addConstraint([
    Sketcher.Constraint("Coincident", 0, 2, 1, 2),
    Sketcher.Constraint("Coincident", 1, 1, 2, 1),
    Sketcher.Constraint("Coincident", 2, 2, 3, 2),
    Sketcher.Constraint("Coincident", 3, 1, 0, 1),
    Sketcher.Constraint("Coincident", 5, 2, 6, 1),
    Sketcher.Constraint("Coincident", 6, 2, 7, 1),
    Sketcher.Constraint("Coincident", 7, 2, 8, 1),
    Sketcher.Constraint("Coincident", 8, 2, 5, 1),
    Sketcher.Constraint("Coincident", 9, 2, 10, 1),
    Sketcher.Constraint("Coincident", 10, 2, 11, 1),
    Sketcher.Constraint("Coincident", 11, 2, 12, 1),
    Sketcher.Constraint("Coincident", 12, 2, 9, 1),
    Sketcher.Constraint("Coincident", 14, 2, 15, 1),
    Sketcher.Constraint("Coincident", 15, 2, 16, 1),
    Sketcher.Constraint("Coincident", 16, 2, 17, 1),
    Sketcher.Constraint("Coincident", 17, 2, 14, 1),
    Sketcher.Constraint("Coincident", 19, 2, 20, 1),
    Sketcher.Constraint("Coincident", 20, 2, 21, 1),
    Sketcher.Constraint("Coincident", 21, 2, 22, 1),
    Sketcher.Constraint("Coincident", 22, 2, 19, 1),
    Sketcher.Constraint("Vertical", 0),
    Sketcher.Constraint("Vertical", 2),
    Sketcher.Constraint("Horizontal", 5),
    Sketcher.Constraint("Vertical", 6),
    Sketcher.Constraint("Horizontal", 7),
    Sketcher.Constraint("Vertical", 8),
    Sketcher.Constraint("Horizontal", 9),
    Sketcher.Constraint("Vertical", 10),
    Sketcher.Constraint("Horizontal", 11),
    Sketcher.Constraint("Vertical", 12),
    Sketcher.Constraint("Horizontal", 14),
    Sketcher.Constraint("Vertical", 15),
    Sketcher.Constraint("Horizontal", 16),
    Sketcher.Constraint("Vertical", 17),
    Sketcher.Constraint("Horizontal", 19),
    Sketcher.Constraint("Vertical", 20),
    Sketcher.Constraint("Horizontal", 21),
    Sketcher.Constraint("Vertical", 22),
    Sketcher.Constraint("Coincident", 3, 3, 1, 3),
    Sketcher.Constraint("Equal", 1, 3),
    Sketcher.Constraint("Equal", 4, 13),
    Sketcher.Constraint("Equal", 13, 18),
    Sketcher.Constraint("Equal", 18, 23),
    Sketcher.Constraint("Horizontal", 4, 3, 13, 3),
    Sketcher.Constraint("Horizontal", 18, 3, 23, 3),
    Sketcher.Constraint("Horizontal", 23, 3, 0, 2),
    Sketcher.Constraint("Horizontal", 0, 2, 1, 1),
    Sketcher.Constraint("Horizontal", 13, 3, 2, 2),
    Sketcher.Constraint("Horizontal", 8, 2, 14, 2),
    Sketcher.Constraint("Horizontal", 7, 2, 15, 2),
    Sketcher.Constraint("Equal", 7, 14),
    Sketcher.Constraint("Equal", 11, 6),
    Sketcher.Constraint("Radius", 1, 85.0),
    Sketcher.Constraint("Diameter", 4, 2.5),
    Sketcher.Constraint("DistanceX", 5, 2, 5, 1, 50.0),
    Sketcher.Constraint("DistanceX", 9, 2, 9, 1, 40.0),
    Sketcher.Constraint("DistanceX", 19, 2, 19, 1, 100.0),
    Sketcher.Constraint("DistanceY", 10, 2, 10, 1, 20.0),
    Sketcher.Constraint("DistanceY", 20, 2, 20, 1, 55.0),
    Sketcher.Constraint("DistanceX", 4, 3, 3, 3, 45.0),
    Sketcher.Constraint("DistanceX", 3, 3, 13, 3, 45.0),
    Sketcher.Constraint("DistanceX", 18, 3, 1, 3, 55.0),
    Sketcher.Constraint("DistanceX", 1, 3, 23, 3, 55.0),
    Sketcher.Constraint("DistanceX", 23, 3, 0, 2, 15.0),
    Sketcher.Constraint("DistanceX", 2, 2, 5, 2, 10.0),
    Sketcher.Constraint("DistanceX", 4, 3, 9, 2, 25.0),
    Sketcher.Constraint("DistanceY", 8, 2, 9, 2, 35.0),
    Sketcher.Constraint("DistanceX", 14, 2, 11, 2, 10.0),
    Sketcher.Constraint("DistanceX", 6, 2, 19, 2, 10.0),
    Sketcher.Constraint("DistanceY", 19, 2, 6, 2, 5.0),
    Sketcher.Constraint("DistanceY", 3, 3, 5, 2, 37.5),
    Sketcher.Constraint("DistanceY", -1, 1, 4, 3, 37.118668),
    Sketcher.Constraint("DistanceX", -1, 1, 1, 3, 863.509083),
])
pad11 = doc.addObject("PartDesign::Pad", "Pad010")
body6.addObject(pad11)
pad11.Profile = sketch11
pad11.Length = 5
pad11.Reversed = True

doc.recompute()
